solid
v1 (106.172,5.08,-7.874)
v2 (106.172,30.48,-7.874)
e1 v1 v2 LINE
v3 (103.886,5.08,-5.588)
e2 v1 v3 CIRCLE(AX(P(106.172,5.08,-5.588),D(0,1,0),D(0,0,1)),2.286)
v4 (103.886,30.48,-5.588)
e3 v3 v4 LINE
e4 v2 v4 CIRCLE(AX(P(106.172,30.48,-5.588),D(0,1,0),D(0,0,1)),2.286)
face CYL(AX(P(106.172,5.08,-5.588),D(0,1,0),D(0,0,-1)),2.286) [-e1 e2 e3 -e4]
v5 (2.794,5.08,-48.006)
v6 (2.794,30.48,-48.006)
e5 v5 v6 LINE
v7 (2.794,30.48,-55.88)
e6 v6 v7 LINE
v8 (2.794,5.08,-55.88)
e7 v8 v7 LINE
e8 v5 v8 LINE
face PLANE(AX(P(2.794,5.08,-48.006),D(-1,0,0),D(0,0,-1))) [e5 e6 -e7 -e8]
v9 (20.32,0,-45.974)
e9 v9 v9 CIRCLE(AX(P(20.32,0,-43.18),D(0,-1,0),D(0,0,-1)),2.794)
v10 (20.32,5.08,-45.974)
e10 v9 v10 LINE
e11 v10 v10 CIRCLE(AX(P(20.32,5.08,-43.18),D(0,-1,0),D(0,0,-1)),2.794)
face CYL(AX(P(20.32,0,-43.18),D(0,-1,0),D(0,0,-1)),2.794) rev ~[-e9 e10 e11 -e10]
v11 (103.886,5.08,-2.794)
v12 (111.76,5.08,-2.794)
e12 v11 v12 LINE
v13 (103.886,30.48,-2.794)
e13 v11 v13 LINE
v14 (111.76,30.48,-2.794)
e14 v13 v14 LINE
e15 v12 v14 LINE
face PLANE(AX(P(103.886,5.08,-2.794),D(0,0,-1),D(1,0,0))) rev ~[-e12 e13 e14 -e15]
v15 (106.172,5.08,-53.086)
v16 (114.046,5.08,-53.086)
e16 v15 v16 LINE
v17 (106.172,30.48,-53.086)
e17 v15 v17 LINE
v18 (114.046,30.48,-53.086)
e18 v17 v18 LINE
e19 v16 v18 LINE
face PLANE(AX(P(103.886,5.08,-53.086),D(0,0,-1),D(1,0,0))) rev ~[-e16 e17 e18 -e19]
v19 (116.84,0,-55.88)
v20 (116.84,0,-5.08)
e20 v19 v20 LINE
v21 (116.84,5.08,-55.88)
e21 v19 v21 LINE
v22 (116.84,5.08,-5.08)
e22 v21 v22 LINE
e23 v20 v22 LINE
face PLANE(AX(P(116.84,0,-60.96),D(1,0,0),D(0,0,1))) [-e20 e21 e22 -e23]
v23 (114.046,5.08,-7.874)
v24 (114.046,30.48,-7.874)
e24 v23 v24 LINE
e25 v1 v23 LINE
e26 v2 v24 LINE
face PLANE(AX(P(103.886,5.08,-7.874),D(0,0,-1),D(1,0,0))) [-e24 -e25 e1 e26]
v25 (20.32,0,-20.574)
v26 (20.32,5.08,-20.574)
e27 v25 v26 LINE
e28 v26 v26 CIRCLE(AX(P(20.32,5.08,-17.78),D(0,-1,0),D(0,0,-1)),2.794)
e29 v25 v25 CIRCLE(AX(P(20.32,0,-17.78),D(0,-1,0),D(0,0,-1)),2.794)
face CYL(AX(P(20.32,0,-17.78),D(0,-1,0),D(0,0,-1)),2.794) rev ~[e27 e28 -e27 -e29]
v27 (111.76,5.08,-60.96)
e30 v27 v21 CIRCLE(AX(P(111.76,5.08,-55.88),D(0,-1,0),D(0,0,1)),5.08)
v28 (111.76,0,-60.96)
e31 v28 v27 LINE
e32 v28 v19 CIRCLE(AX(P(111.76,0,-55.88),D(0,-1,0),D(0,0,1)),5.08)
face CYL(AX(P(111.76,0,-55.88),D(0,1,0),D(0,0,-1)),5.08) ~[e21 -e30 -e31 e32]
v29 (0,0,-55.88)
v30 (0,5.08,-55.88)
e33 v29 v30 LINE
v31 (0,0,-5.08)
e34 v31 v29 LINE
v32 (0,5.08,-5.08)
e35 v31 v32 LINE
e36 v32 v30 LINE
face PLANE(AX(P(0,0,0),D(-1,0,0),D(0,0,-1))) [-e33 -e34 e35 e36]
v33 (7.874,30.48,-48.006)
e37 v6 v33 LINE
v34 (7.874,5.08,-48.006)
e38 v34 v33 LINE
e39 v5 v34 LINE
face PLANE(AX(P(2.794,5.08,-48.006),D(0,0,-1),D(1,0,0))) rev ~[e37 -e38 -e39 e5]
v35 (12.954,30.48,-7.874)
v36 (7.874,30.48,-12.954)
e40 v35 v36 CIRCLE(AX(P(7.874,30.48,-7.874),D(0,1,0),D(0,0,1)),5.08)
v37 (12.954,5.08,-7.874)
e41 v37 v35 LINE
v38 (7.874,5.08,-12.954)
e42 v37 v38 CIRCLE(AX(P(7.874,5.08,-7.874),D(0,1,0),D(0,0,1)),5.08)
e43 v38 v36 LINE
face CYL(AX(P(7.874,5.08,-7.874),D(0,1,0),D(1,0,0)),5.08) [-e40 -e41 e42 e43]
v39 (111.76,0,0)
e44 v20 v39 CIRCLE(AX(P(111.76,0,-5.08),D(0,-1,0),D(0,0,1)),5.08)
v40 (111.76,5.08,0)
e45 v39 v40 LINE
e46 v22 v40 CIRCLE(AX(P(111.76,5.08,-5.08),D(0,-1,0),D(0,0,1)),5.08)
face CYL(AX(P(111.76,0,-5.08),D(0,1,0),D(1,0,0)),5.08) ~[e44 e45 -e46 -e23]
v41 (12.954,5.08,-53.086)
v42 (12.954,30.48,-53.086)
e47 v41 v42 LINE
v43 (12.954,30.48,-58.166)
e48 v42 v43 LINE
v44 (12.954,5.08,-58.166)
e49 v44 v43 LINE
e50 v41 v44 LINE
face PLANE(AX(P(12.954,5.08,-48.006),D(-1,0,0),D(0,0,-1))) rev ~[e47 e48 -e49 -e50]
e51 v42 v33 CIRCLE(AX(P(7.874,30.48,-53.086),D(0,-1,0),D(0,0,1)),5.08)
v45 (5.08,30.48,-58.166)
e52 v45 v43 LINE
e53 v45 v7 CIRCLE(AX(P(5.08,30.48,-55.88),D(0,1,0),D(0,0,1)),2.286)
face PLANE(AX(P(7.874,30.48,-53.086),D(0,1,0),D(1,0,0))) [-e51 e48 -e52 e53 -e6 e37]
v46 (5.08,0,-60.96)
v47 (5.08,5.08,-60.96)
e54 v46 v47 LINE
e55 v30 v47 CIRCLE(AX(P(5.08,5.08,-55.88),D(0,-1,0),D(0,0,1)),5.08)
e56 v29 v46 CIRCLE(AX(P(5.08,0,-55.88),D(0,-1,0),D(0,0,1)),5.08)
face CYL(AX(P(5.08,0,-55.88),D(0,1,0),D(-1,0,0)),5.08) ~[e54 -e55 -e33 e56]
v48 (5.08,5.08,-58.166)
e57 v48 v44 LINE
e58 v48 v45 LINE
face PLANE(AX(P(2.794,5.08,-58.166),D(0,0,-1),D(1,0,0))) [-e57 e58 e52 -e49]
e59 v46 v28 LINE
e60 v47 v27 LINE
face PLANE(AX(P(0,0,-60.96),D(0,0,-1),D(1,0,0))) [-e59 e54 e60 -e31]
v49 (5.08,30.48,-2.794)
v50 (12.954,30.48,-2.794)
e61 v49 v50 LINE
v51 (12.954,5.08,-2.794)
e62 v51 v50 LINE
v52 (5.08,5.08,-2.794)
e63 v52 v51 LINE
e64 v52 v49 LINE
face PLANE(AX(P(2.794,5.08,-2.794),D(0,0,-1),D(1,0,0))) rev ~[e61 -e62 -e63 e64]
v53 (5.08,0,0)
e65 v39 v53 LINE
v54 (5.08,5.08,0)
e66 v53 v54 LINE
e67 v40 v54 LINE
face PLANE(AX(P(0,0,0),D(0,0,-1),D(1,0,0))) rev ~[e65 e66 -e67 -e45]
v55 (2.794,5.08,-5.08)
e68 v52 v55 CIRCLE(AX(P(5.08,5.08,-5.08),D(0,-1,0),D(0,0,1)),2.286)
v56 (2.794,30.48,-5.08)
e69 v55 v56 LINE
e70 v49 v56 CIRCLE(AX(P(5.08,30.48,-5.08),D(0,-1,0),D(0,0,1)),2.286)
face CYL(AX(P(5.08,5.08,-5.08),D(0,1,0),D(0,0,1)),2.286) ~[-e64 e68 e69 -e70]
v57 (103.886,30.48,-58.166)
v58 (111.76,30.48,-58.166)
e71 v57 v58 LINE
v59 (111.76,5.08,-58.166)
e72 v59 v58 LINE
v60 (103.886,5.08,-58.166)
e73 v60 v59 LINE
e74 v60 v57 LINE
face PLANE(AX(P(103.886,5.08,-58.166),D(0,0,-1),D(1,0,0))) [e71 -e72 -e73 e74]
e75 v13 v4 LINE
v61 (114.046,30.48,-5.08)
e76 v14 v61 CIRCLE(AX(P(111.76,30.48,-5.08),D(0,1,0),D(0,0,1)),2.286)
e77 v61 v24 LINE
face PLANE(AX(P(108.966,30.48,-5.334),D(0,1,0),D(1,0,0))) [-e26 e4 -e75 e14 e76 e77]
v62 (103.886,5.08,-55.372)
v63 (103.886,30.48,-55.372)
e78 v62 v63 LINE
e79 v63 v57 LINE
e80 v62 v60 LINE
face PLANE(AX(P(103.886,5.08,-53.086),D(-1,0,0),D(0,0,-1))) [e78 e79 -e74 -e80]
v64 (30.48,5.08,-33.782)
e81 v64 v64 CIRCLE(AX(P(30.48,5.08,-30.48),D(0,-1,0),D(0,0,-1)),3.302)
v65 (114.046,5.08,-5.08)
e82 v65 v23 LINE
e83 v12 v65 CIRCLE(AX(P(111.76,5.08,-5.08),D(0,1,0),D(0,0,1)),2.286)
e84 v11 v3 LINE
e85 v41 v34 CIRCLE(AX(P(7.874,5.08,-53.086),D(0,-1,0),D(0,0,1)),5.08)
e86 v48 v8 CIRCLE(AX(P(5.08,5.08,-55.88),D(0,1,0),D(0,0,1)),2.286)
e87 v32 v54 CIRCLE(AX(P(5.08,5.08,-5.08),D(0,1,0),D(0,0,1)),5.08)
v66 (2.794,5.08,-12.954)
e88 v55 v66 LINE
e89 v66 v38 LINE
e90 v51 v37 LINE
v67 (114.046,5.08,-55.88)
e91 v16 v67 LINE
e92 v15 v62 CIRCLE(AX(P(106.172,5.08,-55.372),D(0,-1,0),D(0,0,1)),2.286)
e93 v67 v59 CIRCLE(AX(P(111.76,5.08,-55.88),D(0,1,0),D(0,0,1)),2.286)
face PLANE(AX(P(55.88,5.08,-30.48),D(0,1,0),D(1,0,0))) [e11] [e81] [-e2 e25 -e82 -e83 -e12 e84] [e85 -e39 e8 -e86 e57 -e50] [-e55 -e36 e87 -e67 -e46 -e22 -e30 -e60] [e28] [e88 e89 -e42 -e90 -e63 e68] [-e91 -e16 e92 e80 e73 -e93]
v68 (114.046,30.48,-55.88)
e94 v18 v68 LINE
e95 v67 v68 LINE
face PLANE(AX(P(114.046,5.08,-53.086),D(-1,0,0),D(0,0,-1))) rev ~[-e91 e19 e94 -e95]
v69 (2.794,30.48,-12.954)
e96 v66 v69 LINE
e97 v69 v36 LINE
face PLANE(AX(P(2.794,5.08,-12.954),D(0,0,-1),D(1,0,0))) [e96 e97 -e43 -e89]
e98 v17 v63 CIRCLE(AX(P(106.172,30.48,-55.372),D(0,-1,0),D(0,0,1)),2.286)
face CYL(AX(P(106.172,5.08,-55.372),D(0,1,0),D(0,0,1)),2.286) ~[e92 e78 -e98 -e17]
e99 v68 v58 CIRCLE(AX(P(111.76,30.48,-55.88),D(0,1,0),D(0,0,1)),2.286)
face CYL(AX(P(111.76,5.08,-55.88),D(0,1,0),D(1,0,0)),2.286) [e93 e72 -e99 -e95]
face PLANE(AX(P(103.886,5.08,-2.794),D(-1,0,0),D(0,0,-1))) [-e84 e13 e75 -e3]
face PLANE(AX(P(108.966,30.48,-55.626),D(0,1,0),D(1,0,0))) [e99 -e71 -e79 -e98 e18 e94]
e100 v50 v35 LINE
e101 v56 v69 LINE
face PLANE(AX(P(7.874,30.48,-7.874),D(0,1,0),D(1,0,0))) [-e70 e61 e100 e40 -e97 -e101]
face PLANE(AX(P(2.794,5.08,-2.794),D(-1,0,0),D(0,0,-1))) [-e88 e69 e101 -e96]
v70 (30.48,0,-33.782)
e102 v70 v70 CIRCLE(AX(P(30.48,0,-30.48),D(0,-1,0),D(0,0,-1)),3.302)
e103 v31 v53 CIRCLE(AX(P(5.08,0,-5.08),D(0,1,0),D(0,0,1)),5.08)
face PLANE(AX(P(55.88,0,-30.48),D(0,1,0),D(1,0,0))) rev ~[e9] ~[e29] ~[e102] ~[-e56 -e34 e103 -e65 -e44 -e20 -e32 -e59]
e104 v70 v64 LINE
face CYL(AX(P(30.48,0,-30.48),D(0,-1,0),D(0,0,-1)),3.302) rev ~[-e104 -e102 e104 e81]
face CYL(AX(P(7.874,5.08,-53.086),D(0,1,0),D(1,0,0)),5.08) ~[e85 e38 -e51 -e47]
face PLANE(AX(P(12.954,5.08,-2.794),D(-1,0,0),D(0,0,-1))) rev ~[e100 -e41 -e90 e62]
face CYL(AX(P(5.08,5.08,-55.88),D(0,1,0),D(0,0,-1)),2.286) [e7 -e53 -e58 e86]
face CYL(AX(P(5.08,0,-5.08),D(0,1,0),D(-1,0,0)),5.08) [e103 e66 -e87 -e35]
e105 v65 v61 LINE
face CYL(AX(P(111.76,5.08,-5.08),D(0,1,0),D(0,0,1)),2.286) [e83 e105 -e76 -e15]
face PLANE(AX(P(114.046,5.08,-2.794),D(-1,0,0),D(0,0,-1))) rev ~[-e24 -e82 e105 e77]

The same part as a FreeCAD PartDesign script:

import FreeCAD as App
import Part
import Sketcher
from FreeCAD import Vector
Q = App.Units.Quantity


def edges_at(feature, points):
    """Names of the edges that pass closest to the given points."""
    edges = feature.Shape.Edges
    near = lambda p: min(range(len(edges)), key=lambda i: edges[i].distToShape(Part.Vertex(*p))[0])
    return sorted({f"Edge{near(p) + 1}" for p in points})

doc = App.newDocument("Part")
body = doc.addObject("PartDesign::Body", "Body")

# Sketch on XZ plane
sketch1 = body.newObject("Sketcher::SketchObject", "Sketch")
sketch1.AttachmentSupport = (doc.getObject("XZ_Plane"), [""])
sketch1.MapMode = "FlatFace"
sketch1.addGeometry(Part.LineSegment(Vector(0, -61, 0), Vector(0, 0, 0)), False)
sketch1.addGeometry(Part.LineSegment(Vector(0, 0, 0), Vector(112, 0, 0)), False)
sketch1.addGeometry(Part.LineSegment(Vector(112, 0, 0), Vector(112, -61, 0)), False)
sketch1.addGeometry(Part.LineSegment(Vector(112, -61, 0), Vector(0, -61, 0)), False)
sketch1.addConstraint(Sketcher.Constraint("Coincident", 0, 2, 1, 1))
sketch1.addConstraint(Sketcher.Constraint("Coincident", 1, 2, 2, 1))
sketch1.addConstraint(Sketcher.Constraint("Coincident", 2, 2, 3, 1))
sketch1.addConstraint(Sketcher.Constraint("Coincident", 3, 2, 0, 1))
sketch1.addConstraint(Sketcher.Constraint("Vertical", 0))
sketch1.addConstraint(Sketcher.Constraint("Horizontal", 1))
sketch1.addConstraint(Sketcher.Constraint("Vertical", 2))
sketch1.addConstraint(Sketcher.Constraint("Horizontal", 3))
sketch1.addConstraint(Sketcher.Constraint("Coincident", 0, 2, -1, 1))
sketch1.addConstraint(Sketcher.Constraint("DistanceX", 1, 1, 1, 2, Q("4.4 in")))
sketch1.addConstraint(Sketcher.Constraint("DistanceY", 0, 1, 0, 2, Q("2.4 in")))
pad1 = body.newObject("PartDesign::Pad", "Pad")
pad1.Profile = sketch1
pad1.Length = Q("0.2 in")
pad1.Reversed = True
doc.recompute()

fillet = body.newObject("PartDesign::Fillet", "Fillet")
fillet.Base = (pad1, edges_at(pad1, [
    (0, 2.54, -60.96),
    (111.76, 2.54, -60.96),
    (111.76, 2.54, 0),
    (0, 2.54, 0),
]))
fillet.Radius = Q("0.2 in")

# Sketch on XZ plane
sketch2 = body.newObject("Sketcher::SketchObject", "Sketch001")
sketch2.AttachmentSupport = (doc.getObject("XZ_Plane"), [""])
sketch2.MapMode = "FlatFace"
sketch2.addGeometry(Part.Circle(Vector(20.3, -17.8, 0), Vector(0, 0, 1), 2.8), False)
sketch2.addConstraint(Sketcher.Constraint("Diameter", 0, Q("0.22 in")))
sketch2.addConstraint(Sketcher.Constraint("DistanceX", -1, 1, 0, 3, Q("0.8 in")))
sketch2.addConstraint(Sketcher.Constraint("DistanceY", 0, 3, -1, 1, Q("0.7 in")))
pocket1 = body.newObject("PartDesign::Pocket", "Pocket")
pocket1.Profile = sketch2
pocket1.Type = "UpToFirst"

# Sketch on XZ plane
sketch3 = body.newObject("Sketcher::SketchObject", "Sketch002")
sketch3.AttachmentSupport = (doc.getObject("XZ_Plane"), [""])
sketch3.MapMode = "FlatFace"
sketch3.addGeometry(Part.Circle(Vector(20.3, -43.2, 0), Vector(0, 0, 1), 2.8), False)
sketch3.addConstraint(Sketcher.Constraint("Diameter", 0, Q("0.22 in")))
sketch3.addConstraint(Sketcher.Constraint("DistanceX", -1, 1, 0, 3, Q("0.8 in")))
sketch3.addConstraint(Sketcher.Constraint("DistanceY", 0, 3, -1, 1, Q("1.7 in")))
pocket2 = body.newObject("PartDesign::Pocket", "Pocket001")
pocket2.Profile = sketch3
pocket2.Type = "UpToFirst"

# Sketch on XZ plane
sketch4 = body.newObject("Sketcher::SketchObject", "Sketch003")
sketch4.AttachmentSupport = (doc.getObject("XZ_Plane"), [""])
sketch4.MapMode = "FlatFace"
sketch4.addGeometry(Part.Circle(Vector(30.5, -30.5, 0), Vector(0, 0, 1), 3.3), False)
sketch4.addConstraint(Sketcher.Constraint("Diameter", 0, Q("0.26 in")))
sketch4.addConstraint(Sketcher.Constraint("DistanceX", -1, 1, 0, 3, Q("1.2 in")))
sketch4.addConstraint(Sketcher.Constraint("DistanceY", 0, 3, -1, 1, Q("1.2 in")))
pocket3 = body.newObject("PartDesign::Pocket", "Pocket002")
pocket3.Profile = sketch4
pocket3.Type = "UpToFirst"

# Sketch on XZ plane
sketch5 = body.newObject("Sketcher::SketchObject", "Sketch004")
sketch5.AttachmentSupport = (doc.getObject("XZ_Plane"), [""])
sketch5.MapMode = "FlatFace"
sketch5.addGeometry(Part.LineSegment(Vector(107, 0, 0), Vector(107, -61, 0)), False)
sketch5.addGeometry(Part.LineSegment(Vector(107, -61, 0), Vector(117, -61, 0)), False)
sketch5.addGeometry(Part.LineSegment(Vector(117, -61, 0), Vector(117, 0, 0)), False)
sketch5.addGeometry(Part.LineSegment(Vector(117, 0, 0), Vector(107, 0, 0)), False)
sketch5.addConstraint(Sketcher.Constraint("Coincident", 0, 2, 1, 1))
sketch5.addConstraint(Sketcher.Constraint("Coincident", 1, 2, 2, 1))
sketch5.addConstraint(Sketcher.Constraint("Coincident", 2, 2, 3, 1))
sketch5.addConstraint(Sketcher.Constraint("Coincident", 3, 2, 0, 1))
sketch5.addConstraint(Sketcher.Constraint("Vertical", 0))
sketch5.addConstraint(Sketcher.Constraint("Horizontal", 1))
sketch5.addConstraint(Sketcher.Constraint("Vertical", 2))
sketch5.addConstraint(Sketcher.Constraint("Horizontal", 3))
sketch5.addConstraint(Sketcher.Constraint("PointOnObject", 2, 2, -1))
sketch5.addConstraint(Sketcher.Constraint("DistanceX", 1, 1, 1, 2, Q("0.4 in")))
sketch5.addConstraint(Sketcher.Constraint("DistanceY", 0, 2, 0, 1, Q("2.4 in")))
sketch5.addConstraint(Sketcher.Constraint("DistanceX", -1, 1, 0, 2, Q("4.2 in")))
pad2 = body.newObject("PartDesign::Pad", "Pad001")
pad2.Profile = sketch5
pad2.Length = Q("0.2 in")
pad2.Reversed = True
doc.recompute()

fillet2 = body.newObject("PartDesign::Fillet", "Fillet001")
fillet2.Base = (pad2, edges_at(pad2, [(116.84, 2.54, 0), (116.84, 2.54, -60.96)]))
fillet2.Radius = Q("0.2 in")

# Sketch on XZ plane
sketch6 = body.newObject("Sketcher::SketchObject", "Sketch005")
sketch6.AttachmentSupport = (doc.getObject("XZ_Plane"), [""])
sketch6.MapMode = "FlatFace"
sketch6.AttachmentOffset = App.Placement(Vector(0, 0, -0.2 * 25.4), App.Rotation())
sketch6.addGeometry(Part.LineSegment(Vector(3, -58, 0), Vector(3, -48, 0)), False)
sketch6.addGeometry(Part.LineSegment(Vector(3, -48, 0), Vector(13, -48, 0)), False)
sketch6.addGeometry(Part.LineSegment(Vector(13, -48, 0), Vector(13, -58, 0)), False)
sketch6.addGeometry(Part.LineSegment(Vector(13, -58, 0), Vector(3, -58, 0)), False)
sketch6.addGeometry(Part.LineSegment(Vector(3, -13, 0), Vector(3, -3, 0)), False)
sketch6.addGeometry(Part.LineSegment(Vector(3, -3, 0), Vector(13, -3, 0)), False)
sketch6.addGeometry(Part.LineSegment(Vector(13, -3, 0), Vector(13, -13, 0)), False)
sketch6.addGeometry(Part.LineSegment(Vector(13, -13, 0), Vector(3, -13, 0)), False)
sketch6.addGeometry(Part.LineSegment(Vector(104, -58, 0), Vector(104, -53, 0)), False)
sketch6.addGeometry(Part.LineSegment(Vector(104, -53, 0), Vector(114, -53, 0)), False)
sketch6.addGeometry(Part.LineSegment(Vector(114, -53, 0), Vector(114, -58, 0)), False)
sketch6.addGeometry(Part.LineSegment(Vector(114, -58, 0), Vector(104, -58, 0)), False)
sketch6.addGeometry(Part.LineSegment(Vector(104, -8, 0), Vector(104, -3, 0)), False)
sketch6.addGeometry(Part.LineSegment(Vector(104, -3, 0), Vector(114, -3, 0)), False)
sketch6.addGeometry(Part.LineSegment(Vector(114, -3, 0), Vector(114, -8, 0)), False)
sketch6.addGeometry(Part.LineSegment(Vector(114, -8, 0), Vector(104, -8, 0)), False)
sketch6.addConstraint(Sketcher.Constraint("Coincident", 0, 2, 1, 1))
sketch6.addConstraint(Sketcher.Constraint("Coincident", 1, 2, 2, 1))
sketch6.addConstraint(Sketcher.Constraint("Coincident", 2, 2, 3, 1))
sketch6.addConstraint(Sketcher.Constraint("Coincident", 3, 2, 0, 1))
sketch6.addConstraint(Sketcher.Constraint("Coincident", 4, 2, 5, 1))
sketch6.addConstraint(Sketcher.Constraint("Coincident", 5, 2, 6, 1))
sketch6.addConstraint(Sketcher.Constraint("Coincident", 6, 2, 7, 1))
sketch6.addConstraint(Sketcher.Constraint("Coincident", 7, 2, 4, 1))
sketch6.addConstraint(Sketcher.Constraint("Coincident", 8, 2, 9, 1))
sketch6.addConstraint(Sketcher.Constraint("Coincident", 9, 2, 10, 1))
sketch6.addConstraint(Sketcher.Constraint("Coincident", 10, 2, 11, 1))
sketch6.addConstraint(Sketcher.Constraint("Coincident", 11, 2, 8, 1))
sketch6.addConstraint(Sketcher.Constraint("Coincident", 12, 2, 13, 1))
sketch6.addConstraint(Sketcher.Constraint("Coincident", 13, 2, 14, 1))
sketch6.addConstraint(Sketcher.Constraint("Coincident", 14, 2, 15, 1))
sketch6.addConstraint(Sketcher.Constraint("Coincident", 15, 2, 12, 1))
sketch6.addConstraint(Sketcher.Constraint("Vertical", 0))
sketch6.addConstraint(Sketcher.Constraint("Horizontal", 1))
sketch6.addConstraint(Sketcher.Constraint("Vertical", 2))
sketch6.addConstraint(Sketcher.Constraint("Horizontal", 3))
sketch6.addConstraint(Sketcher.Constraint("Vertical", 4))
sketch6.addConstraint(Sketcher.Constraint("Horizontal", 5))
sketch6.addConstraint(Sketcher.Constraint("Vertical", 6))
sketch6.addConstraint(Sketcher.Constraint("Horizontal", 7))
sketch6.addConstraint(Sketcher.Constraint("Vertical", 8))
sketch6.addConstraint(Sketcher.Constraint("Horizontal", 9))
sketch6.addConstraint(Sketcher.Constraint("Vertical", 10))
sketch6.addConstraint(Sketcher.Constraint("Horizontal", 11))
sketch6.addConstraint(Sketcher.Constraint("Vertical", 12))
sketch6.addConstraint(Sketcher.Constraint("Horizontal", 13))
sketch6.addConstraint(Sketcher.Constraint("Vertical", 14))
sketch6.addConstraint(Sketcher.Constraint("Horizontal", 15))
sketch6.addConstraint(Sketcher.Constraint("Horizontal", 3, 2, 10, 2))
sketch6.addConstraint(Sketcher.Constraint("Horizontal", 5, 2, 12, 2))
sketch6.addConstraint(Sketcher.Constraint("Vertical", 3, 2, 4, 2))
sketch6.addConstraint(Sketcher.Constraint("Vertical", 2, 2, 5, 2))
sketch6.addConstraint(Sketcher.Constraint("Vertical", 11, 2, 12, 2))
sketch6.addConstraint(Sketcher.Constraint("Vertical", 10, 2, 13, 2))
sketch6.addConstraint(Sketcher.Constraint("Equal", 7, 9))
sketch6.addConstraint(Sketcher.Constraint("Equal", 15, 0))
sketch6.addConstraint(Sketcher.Constraint("Equal", 2, 4))
sketch6.addConstraint(Sketcher.Constraint("Equal", 10, 12))
sketch6.addConstraint(Sketcher.Constraint("DistanceX", 1, 1, 1, 2, Q("0.4 in")))
sketch6.addConstraint(Sketcher.Constraint("DistanceY", 8, 1, 8, 2, Q("0.2 in")))
sketch6.addConstraint(Sketcher.Constraint("DistanceX", -1, 1, 0, 2, Q("0.11 in")))
sketch6.addConstraint(Sketcher.Constraint("DistanceY", 0, 2, -1, 1, Q("1.89 in")))
sketch6.addConstraint(Sketcher.Constraint("DistanceY", 4, 2, -1, 1, Q("0.11 in")))
sketch6.addConstraint(Sketcher.Constraint("DistanceX", -1, 1, 8, 2, Q("4.09 in")))
pad3 = body.newObject("PartDesign::Pad", "Pad002")
pad3.Profile = sketch6
pad3.Length = Q("1 in")
pad3.Reversed = True
doc.recompute()

fillet3 = body.newObject("PartDesign::Fillet", "Fillet002")
fillet3.Base = (pad3, edges_at(pad3, [
    (103.886, 17.78, -7.874),
    (114.046, 17.78, -2.794),
    (2.794, 17.78, -2.794),
    (2.794, 17.78, -58.166),
    (103.886, 17.78, -53.086),
    (114.046, 17.78, -58.166),
]))
fillet3.Radius = Q("0.09 in")
doc.recompute()

fillet4 = body.newObject("PartDesign::Fillet", "Fillet003")
fillet4.Base = (fillet3, edges_at(fillet3, [(12.954, 17.78, -12.954), (12.954, 17.78, -48.006)]))
fillet4.Radius = Q("0.2 in")

doc.recompute()
